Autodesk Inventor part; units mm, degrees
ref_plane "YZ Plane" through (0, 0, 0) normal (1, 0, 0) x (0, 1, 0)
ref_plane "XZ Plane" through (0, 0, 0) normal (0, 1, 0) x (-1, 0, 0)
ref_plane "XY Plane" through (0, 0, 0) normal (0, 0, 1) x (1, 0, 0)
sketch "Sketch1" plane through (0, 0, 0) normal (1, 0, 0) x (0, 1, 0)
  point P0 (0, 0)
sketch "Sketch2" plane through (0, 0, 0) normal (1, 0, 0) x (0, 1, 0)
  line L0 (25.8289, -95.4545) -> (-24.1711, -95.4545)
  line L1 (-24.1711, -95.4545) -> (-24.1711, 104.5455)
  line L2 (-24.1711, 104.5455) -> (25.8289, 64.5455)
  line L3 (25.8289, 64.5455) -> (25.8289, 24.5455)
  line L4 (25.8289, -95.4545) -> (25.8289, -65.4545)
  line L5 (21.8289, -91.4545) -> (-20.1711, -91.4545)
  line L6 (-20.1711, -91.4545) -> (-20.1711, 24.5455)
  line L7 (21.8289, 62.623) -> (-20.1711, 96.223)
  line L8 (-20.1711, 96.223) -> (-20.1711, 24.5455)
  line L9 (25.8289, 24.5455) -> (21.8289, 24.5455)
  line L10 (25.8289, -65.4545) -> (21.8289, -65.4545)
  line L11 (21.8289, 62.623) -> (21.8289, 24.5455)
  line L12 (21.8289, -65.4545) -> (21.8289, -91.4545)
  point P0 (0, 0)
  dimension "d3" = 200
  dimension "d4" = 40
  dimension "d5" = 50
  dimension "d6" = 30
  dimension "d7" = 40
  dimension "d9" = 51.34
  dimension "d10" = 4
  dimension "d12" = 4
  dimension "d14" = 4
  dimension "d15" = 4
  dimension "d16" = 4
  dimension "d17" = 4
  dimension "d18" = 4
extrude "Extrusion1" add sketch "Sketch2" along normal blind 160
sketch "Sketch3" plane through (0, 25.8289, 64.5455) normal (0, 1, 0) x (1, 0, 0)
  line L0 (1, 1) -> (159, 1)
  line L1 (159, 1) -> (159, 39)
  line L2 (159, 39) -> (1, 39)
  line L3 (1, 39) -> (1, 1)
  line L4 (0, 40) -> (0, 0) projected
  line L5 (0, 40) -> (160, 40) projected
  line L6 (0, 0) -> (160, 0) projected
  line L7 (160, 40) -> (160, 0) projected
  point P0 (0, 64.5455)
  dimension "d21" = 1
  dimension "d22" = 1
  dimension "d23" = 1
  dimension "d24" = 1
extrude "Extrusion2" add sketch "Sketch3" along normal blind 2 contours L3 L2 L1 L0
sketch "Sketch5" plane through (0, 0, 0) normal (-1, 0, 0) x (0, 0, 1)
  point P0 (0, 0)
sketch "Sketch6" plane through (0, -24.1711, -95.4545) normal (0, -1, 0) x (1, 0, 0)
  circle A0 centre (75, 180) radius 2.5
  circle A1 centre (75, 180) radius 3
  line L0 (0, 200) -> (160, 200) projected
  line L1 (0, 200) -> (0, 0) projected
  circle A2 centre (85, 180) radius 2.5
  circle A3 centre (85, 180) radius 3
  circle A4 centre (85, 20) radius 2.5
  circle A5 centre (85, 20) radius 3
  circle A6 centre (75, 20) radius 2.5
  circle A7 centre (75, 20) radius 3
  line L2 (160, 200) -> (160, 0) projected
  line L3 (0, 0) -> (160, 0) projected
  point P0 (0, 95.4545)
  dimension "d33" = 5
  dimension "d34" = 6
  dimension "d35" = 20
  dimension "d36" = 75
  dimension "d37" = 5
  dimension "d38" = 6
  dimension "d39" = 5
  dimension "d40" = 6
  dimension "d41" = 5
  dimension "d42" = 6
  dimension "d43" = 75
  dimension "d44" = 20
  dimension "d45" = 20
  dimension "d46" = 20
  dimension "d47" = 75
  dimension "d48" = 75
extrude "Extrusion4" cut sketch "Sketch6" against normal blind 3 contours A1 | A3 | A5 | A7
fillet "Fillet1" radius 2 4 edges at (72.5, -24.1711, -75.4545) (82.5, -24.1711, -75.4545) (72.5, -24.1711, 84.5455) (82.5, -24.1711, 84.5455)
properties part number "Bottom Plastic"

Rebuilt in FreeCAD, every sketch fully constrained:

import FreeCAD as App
import Part
import Sketcher
from FreeCAD import Vector
Q = App.Units.Quantity


def edges_at(feature, points):
    """Names of the edges that pass closest to the given points."""
    edges = feature.Shape.Edges
    near = lambda p: min(range(len(edges)), key=lambda i: edges[i].distToShape(Part.Vertex(*p))[0])
    return sorted({f"Edge{near(p) + 1}" for p in points})


def add_polygon(sketch, points):
    """Adds a closed chain of lines whose ends are joined by coincident constraints."""
    first, n = sketch.GeometryCount, len(points)
    for a, b in zip(points, points[1:] + points[:1]):
        sketch.addGeometry(Part.LineSegment(App.Vector(*a, 0), App.Vector(*b, 0)), False)
    for i in range(n):
        sketch.addConstraint(Sketcher.Constraint("Coincident", first + i, 2, first + (i + 1) % n, 1))

doc = App.newDocument("Part")
body = doc.addObject("PartDesign::Body", "Body")

# Sketch on YZ plane
sketch1 = body.newObject("Sketcher::SketchObject", "Sketch")
sketch1.AttachmentSupport = (doc.getObject("YZ_Plane"), [""])
sketch1.MapMode = "FlatFace"
add_polygon(sketch1, [(-24.2, -95.5), (25.8, -95.5), (25.8, -65.5), (21.8, -65.5), (21.8, -91.5), (-20.2, -91.5), (-20.2, 96.2), (21.8, 62.6), (21.8, 24.5), (25.8, 24.5), (25.8, 64.5), (-24.2, 104.5)])  # lines 0-11
sketch1.addConstraint(Sketcher.Constraint("Horizontal", 0))
sketch1.addConstraint(Sketcher.Constraint("Vertical", 1))
sketch1.addConstraint(Sketcher.Constraint("Horizontal", 2))
sketch1.addConstraint(Sketcher.Constraint("Vertical", 3))
sketch1.addConstraint(Sketcher.Constraint("Horizontal", 4))
sketch1.addConstraint(Sketcher.Constraint("Vertical", 5))
sketch1.addConstraint(Sketcher.Constraint("Vertical", 7))
sketch1.addConstraint(Sketcher.Constraint("Horizontal", 8))
sketch1.addConstraint(Sketcher.Constraint("Vertical", 9))
sketch1.addConstraint(Sketcher.Constraint("Vertical", 11))
sketch1.addConstraint(Sketcher.Constraint("Parallel", 6, 10))
sketch1.addConstraint(Sketcher.Constraint("Vertical", 3, 2, 6, 2))
sketch1.addConstraint(Sketcher.Constraint("Vertical", 1, 2, 8, 2))
sketch1.addConstraint(Sketcher.Constraint("DistanceX", 0, 1, 0, 2, Q("50 mm")))
sketch1.addConstraint(Sketcher.Constraint("DistanceX", 2, 2, 2, 1, Q("4 mm")))
sketch1.addConstraint(Sketcher.Constraint("DistanceY", 1, 1, 1, 2, Q("30 mm")))
sketch1.addConstraint(Sketcher.Constraint("DistanceY", 9, 1, 9, 2, Q("40 mm")))
sketch1.addConstraint(Sketcher.Constraint("DistanceY", 11, 2, 11, 1, Q("200 mm")))
sketch1.addConstraint(Sketcher.Constraint("DistanceY", 0, 2, 3, 2, Q("4 mm")))
sketch1.addConstraint(Sketcher.Constraint("DistanceX", 10, 2, 5, 2, Q("4 mm")))
sketch1.addConstraint(Sketcher.Constraint("DistanceY", 9, 2, 10, 2, Q("40 mm")))
sketch1.addConstraint(Sketcher.Constraint("DistanceY", 5, 1, 5, 2, Q("187.6775 mm")))
sketch1.addConstraint(Sketcher.Constraint("DistanceX", -1, 1, 0, 2, Q("25.829 mm")))
sketch1.addConstraint(Sketcher.Constraint("DistanceY", -1, 1, 5, 2, Q("96.223 mm")))
pad1 = body.newObject("PartDesign::Pad", "Pad")
pad1.Profile = sketch1
pad1.Length = 160

# Sketch on XZ plane
sketch2 = body.newObject("Sketcher::SketchObject", "Sketch001")
sketch2.AttachmentSupport = (doc.getObject("XZ_Plane"), [""])
sketch2.MapMode = "FlatFace"
sketch2.AttachmentOffset = App.Placement(Vector(0, 0, -25.8289), App.Rotation())
add_polygon(sketch2, [(1, 26), (1, 64), (159, 64), (159, 26)])  # lines 0-3
sketch2.addConstraint(Sketcher.Constraint("Vertical", 0))
sketch2.addConstraint(Sketcher.Constraint("Horizontal", 1))
sketch2.addConstraint(Sketcher.Constraint("Vertical", 2))
sketch2.addConstraint(Sketcher.Constraint("Horizontal", 3))
sketch2.addConstraint(Sketcher.Constraint("DistanceX", -1, 1, 0, 2, Q("1 mm")))
sketch2.addConstraint(Sketcher.Constraint("DistanceX", 1, 1, 1, 2, Q("158 mm")))
sketch2.addConstraint(Sketcher.Constraint("DistanceY", 0, 1, 0, 2, Q("38 mm")))
sketch2.addConstraint(Sketcher.Constraint("DistanceY", -1, 1, 0, 2, Q("63.5455 mm")))
pad2 = body.newObject("PartDesign::Pad", "Pad001")
pad2.Profile = sketch2
pad2.Length = 2
pad2.Reversed = True

# Sketch on XZ plane
sketch3 = body.newObject("Sketcher::SketchObject", "Sketch002")
sketch3.AttachmentSupport = (doc.getObject("XZ_Plane"), [""])
sketch3.MapMode = "FlatFace"
sketch3.AttachmentOffset = App.Placement(Vector(0, 0, 24.1711), App.Rotation())
sketch3.addGeometry(Part.Circle(Vector(75, 84.5, 0), Vector(0, 0, 1), 3), False)
sketch3.addGeometry(Part.Circle(Vector(75, 84.5, 0), Vector(0, 0, 1), 2.5), False)
sketch3.addGeometry(Part.Circle(Vector(85, 84.5, 0), Vector(0, 0, 1), 3), False)
sketch3.addGeometry(Part.Circle(Vector(85, 84.5, 0), Vector(0, 0, 1), 2.5), False)
sketch3.addGeometry(Part.Circle(Vector(85, -75.5, 0), Vector(0, 0, 1), 3), False)
sketch3.addGeometry(Part.Circle(Vector(85, -75.5, 0), Vector(0, 0, 1), 2.5), False)
sketch3.addGeometry(Part.Circle(Vector(75, -75.5, 0), Vector(0, 0, 1), 3), False)
sketch3.addGeometry(Part.Circle(Vector(75, -75.5, 0), Vector(0, 0, 1), 2.5), False)
sketch3.addConstraint(Sketcher.Constraint("Coincident", 1, 3, 0, 3))
sketch3.addConstraint(Sketcher.Constraint("Coincident", 3, 3, 2, 3))
sketch3.addConstraint(Sketcher.Constraint("Coincident", 5, 3, 4, 3))
sketch3.addConstraint(Sketcher.Constraint("Coincident", 7, 3, 6, 3))
sketch3.addConstraint(Sketcher.Constraint("Equal", 0, 2))
sketch3.addConstraint(Sketcher.Constraint("Equal", 1, 3))
sketch3.addConstraint(Sketcher.Constraint("Equal", 2, 4))
sketch3.addConstraint(Sketcher.Constraint("Equal", 3, 5))
sketch3.addConstraint(Sketcher.Constraint("Equal", 4, 6))
sketch3.addConstraint(Sketcher.Constraint("Equal", 5, 7))
sketch3.addConstraint(Sketcher.Constraint("Horizontal", 1, 3, 2, 3))
sketch3.addConstraint(Sketcher.Constraint("Horizontal", 5, 3, 6, 3))
sketch3.addConstraint(Sketcher.Constraint("Vertical", 3, 3, 4, 3))
sketch3.addConstraint(Sketcher.Constraint("Vertical", 1, 3, 6, 3))
sketch3.addConstraint(Sketcher.Constraint("Diameter", 0, Q("6 mm")))
sketch3.addConstraint(Sketcher.Constraint("Diameter", 1, Q("5 mm")))
sketch3.addConstraint(Sketcher.Constraint("DistanceX", -1, 1, 0, 3, Q("75 mm")))
sketch3.addConstraint(Sketcher.Constraint("DistanceX", -1, 1, 2, 3, Q("85 mm")))
sketch3.addConstraint(Sketcher.Constraint("DistanceY", 4, 3, 2, 3, Q("160 mm")))
sketch3.addConstraint(Sketcher.Constraint("DistanceY", -1, 1, 0, 3, Q("84.5455 mm")))
pocket1 = body.newObject("PartDesign::Pocket", "Pocket")
pocket1.Profile = sketch3
pocket1.Length = 3
doc.recompute()

fillet = body.newObject("PartDesign::Fillet", "Fillet")
fillet.Base = (pocket1, edges_at(pocket1, [
    (72.5, -24.171, -75.454),
    (82.5, -24.171, -75.454),
    (72.5, -24.171, 84.546),
    (82.5, -24.171, 84.546),
]))
fillet.Radius = 2

doc.recompute()
